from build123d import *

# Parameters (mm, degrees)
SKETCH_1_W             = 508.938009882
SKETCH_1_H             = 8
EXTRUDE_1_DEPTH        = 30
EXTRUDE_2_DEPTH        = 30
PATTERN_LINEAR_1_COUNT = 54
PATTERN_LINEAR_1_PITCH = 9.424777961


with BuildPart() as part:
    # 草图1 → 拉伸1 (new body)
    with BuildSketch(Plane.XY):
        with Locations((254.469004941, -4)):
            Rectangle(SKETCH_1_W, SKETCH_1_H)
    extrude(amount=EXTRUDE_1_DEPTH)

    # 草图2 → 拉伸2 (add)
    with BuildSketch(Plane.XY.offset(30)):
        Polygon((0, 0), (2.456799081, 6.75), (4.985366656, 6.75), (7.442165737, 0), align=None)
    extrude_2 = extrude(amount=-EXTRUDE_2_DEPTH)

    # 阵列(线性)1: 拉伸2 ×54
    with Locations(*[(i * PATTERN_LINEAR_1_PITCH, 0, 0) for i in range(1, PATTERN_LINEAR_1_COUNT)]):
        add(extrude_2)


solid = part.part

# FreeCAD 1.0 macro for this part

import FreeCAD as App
import Part
import Sketcher
from FreeCAD import Vector
Q = App.Units.Quantity


def add_polygon(sketch, points):
    """Adds a closed chain of lines whose ends are joined by coincident constraints."""
    first, n = sketch.GeometryCount, len(points)
    for a, b in zip(points, points[1:] + points[:1]):
        sketch.addGeometry(Part.LineSegment(App.Vector(*a, 0), App.Vector(*b, 0)), False)
    for i in range(n):
        sketch.addConstraint(Sketcher.Constraint("Coincident", first + i, 2, first + (i + 1) % n, 1))

doc = App.newDocument("Part")
params = doc.addObject("Spreadsheet::Sheet", "Params")
for row, (alias, value) in enumerate([
    ("sketch1_height", "8 mm"),
    ("pad1_length", "30 mm"),
    ("pad2_length", "30 mm"),
    ("linearpattern_pitch", "9.424778 mm"),
], start=1):
    params.set(f"A{row}", alias)
    params.set(f"B{row}", "=" + value)
    params.setAlias(f"B{row}", alias)

body = doc.addObject("PartDesign::Body", "Body")

sketch1 = body.newObject("Sketcher::SketchObject", "Sketch")
sketch1.AttachmentSupport = (doc.getObject("XY_Plane"), [""])
sketch1.MapMode = "FlatFace"
add_polygon(sketch1, [(0, 0), (0, -8), (509, -8), (509, 0)])
sketch1.addConstraint([
    Sketcher.Constraint("Vertical", 0),
    Sketcher.Constraint("Horizontal", 1),
    Sketcher.Constraint("Vertical", 2),
    Sketcher.Constraint("Horizontal", 3),
    Sketcher.Constraint("Coincident", 3, 2, -1, 1),
    Sketcher.Constraint("DistanceY", 0, 2, 0, 1, Q("8 mm")),
    Sketcher.Constraint("DistanceX", 1, 1, 1, 2, Q("508.93801 mm")),
])
sketch1.setExpression("Constraints[9]", "Params.sketch1_height")
pad1 = body.newObject("PartDesign::Pad", "Pad")
pad1.Profile = sketch1
pad1.setExpression("Length", "Params.pad1_length")

sketch2 = body.newObject("Sketcher::SketchObject", "Sketch001")
sketch2.AttachmentSupport = (doc.getObject("XY_Plane"), [""])
sketch2.MapMode = "FlatFace"
sketch2.AttachmentOffset = App.Placement(Vector(0, 0, 30), App.Rotation())
add_polygon(sketch2, [(2.5, 6.8), (0, 0), (7.4, 0), (5, 6.8)])
sketch2.addConstraint([
    Sketcher.Constraint("Horizontal", 1),
    Sketcher.Constraint("Horizontal", 3),
    Sketcher.Constraint("Coincident", 0, 2, -1, 1),
    Sketcher.Constraint("Equal", 0, 2),
    Sketcher.Constraint("Angle", 0, Q("-110 deg")),
    Sketcher.Constraint("DistanceY", -1, 1, 2, 2, Q("6.75 mm")),
    Sketcher.Constraint("DistanceX", 1, 1, 1, 2, Q("7.442166 mm")),
])
pad2 = body.newObject("PartDesign::Pad", "Pad001")
pad2.Profile = sketch2
pad2.setExpression("Length", "Params.pad2_length")
pad2.Reversed = True
doc.recompute()

linearpattern = body.newObject("PartDesign::LinearPattern", "LinearPattern")
linearpattern.Originals = [pad2]
linearpattern.Direction = (doc.getObject("X_Axis"), [""])
linearpattern.Mode = "offset"
linearpattern.setExpression("Offset", "Params.linearpattern_pitch")
linearpattern.Occurrences = 54
body.Tip = linearpattern

doc.recompute()
